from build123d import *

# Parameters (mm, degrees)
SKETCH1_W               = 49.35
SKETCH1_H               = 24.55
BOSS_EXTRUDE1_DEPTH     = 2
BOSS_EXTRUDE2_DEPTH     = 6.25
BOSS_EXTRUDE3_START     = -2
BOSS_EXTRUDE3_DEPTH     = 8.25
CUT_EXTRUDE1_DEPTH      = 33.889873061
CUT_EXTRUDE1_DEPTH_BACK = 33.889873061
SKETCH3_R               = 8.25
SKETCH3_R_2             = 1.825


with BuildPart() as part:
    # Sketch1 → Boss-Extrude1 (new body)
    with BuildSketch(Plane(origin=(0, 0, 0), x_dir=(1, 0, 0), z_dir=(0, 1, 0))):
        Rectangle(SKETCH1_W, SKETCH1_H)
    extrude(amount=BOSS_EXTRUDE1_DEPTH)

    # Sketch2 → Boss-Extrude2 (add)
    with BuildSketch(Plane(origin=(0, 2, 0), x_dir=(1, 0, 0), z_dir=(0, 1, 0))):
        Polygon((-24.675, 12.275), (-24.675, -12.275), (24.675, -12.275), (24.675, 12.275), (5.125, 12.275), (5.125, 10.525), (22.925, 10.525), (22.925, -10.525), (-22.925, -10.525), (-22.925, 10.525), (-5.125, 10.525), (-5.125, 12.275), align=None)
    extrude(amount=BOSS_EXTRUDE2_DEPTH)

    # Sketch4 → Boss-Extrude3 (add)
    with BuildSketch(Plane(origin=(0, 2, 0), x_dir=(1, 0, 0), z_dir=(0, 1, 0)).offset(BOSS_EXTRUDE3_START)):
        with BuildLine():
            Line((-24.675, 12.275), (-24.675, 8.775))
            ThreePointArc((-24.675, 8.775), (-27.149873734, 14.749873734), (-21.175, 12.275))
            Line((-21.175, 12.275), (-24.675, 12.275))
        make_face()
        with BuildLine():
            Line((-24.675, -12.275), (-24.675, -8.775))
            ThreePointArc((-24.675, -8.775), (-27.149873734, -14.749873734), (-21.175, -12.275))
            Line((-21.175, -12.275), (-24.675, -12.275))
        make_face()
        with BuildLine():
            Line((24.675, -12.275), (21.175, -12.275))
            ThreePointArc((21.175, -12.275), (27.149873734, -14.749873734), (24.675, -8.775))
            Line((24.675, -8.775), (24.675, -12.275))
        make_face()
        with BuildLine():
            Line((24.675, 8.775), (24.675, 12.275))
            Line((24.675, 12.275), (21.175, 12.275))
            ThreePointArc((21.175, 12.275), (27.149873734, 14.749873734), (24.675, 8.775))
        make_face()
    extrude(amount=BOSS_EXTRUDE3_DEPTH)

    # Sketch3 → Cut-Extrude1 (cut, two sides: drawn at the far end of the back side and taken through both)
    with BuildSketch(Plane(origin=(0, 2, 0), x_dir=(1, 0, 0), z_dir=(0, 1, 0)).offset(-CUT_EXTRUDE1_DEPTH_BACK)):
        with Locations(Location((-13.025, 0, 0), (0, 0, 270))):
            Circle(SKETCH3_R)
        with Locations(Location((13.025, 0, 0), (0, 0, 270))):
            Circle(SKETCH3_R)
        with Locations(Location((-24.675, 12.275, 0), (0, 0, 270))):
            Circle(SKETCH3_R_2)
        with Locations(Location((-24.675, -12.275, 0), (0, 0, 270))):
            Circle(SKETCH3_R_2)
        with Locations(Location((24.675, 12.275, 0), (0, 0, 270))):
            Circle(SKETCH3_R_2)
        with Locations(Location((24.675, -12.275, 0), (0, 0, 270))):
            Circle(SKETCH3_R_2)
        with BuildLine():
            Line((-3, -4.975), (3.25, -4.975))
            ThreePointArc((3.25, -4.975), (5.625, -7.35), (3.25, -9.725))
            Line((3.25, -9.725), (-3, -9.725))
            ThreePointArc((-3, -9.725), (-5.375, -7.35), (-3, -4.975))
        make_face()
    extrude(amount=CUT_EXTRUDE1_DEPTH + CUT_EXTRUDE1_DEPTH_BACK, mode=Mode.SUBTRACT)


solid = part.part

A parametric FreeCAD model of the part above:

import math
import FreeCAD as App
import Part
import Sketcher

V = App.Vector


def add_polygon(sketch, points):
    """Adds a closed chain of lines whose ends are joined by coincident constraints."""
    first, n = sketch.GeometryCount, len(points)
    for a, b in zip(points, points[1:] + points[:1]):
        sketch.addGeometry(Part.LineSegment(App.Vector(*a, 0), App.Vector(*b, 0)), False)
    for i in range(n):
        sketch.addConstraint(Sketcher.Constraint("Coincident", first + i, 2, first + (i + 1) % n, 1))

doc = App.newDocument("Part")
body = doc.addObject("PartDesign::Body", "Body")

sketch1 = body.newObject("Sketcher::SketchObject", "Sketch")
sketch1.AttachmentSupport = (doc.getObject("XZ_Plane"), [""])
sketch1.MapMode = "FlatFace"
add_polygon(sketch1, [(-24.675, -12.275), (-24.675, 12.275), (24.675, 12.275), (24.675, -12.275)])
sketch1.addConstraint([
    Sketcher.Constraint("Vertical", 0),
    Sketcher.Constraint("Horizontal", 1),
    Sketcher.Constraint("Vertical", 2),
    Sketcher.Constraint("Horizontal", 3),
    Sketcher.Constraint("Symmetric", 0, 2, 2, 2, -1, 1),
    Sketcher.Constraint("DistanceX", 1, 1, 1, 2, 49.35),
    Sketcher.Constraint("DistanceY", 0, 1, 0, 2, 24.55),
])
pad1 = body.newObject("PartDesign::Pad", "Pad")
pad1.Profile = sketch1
pad1.Length = 2
pad1.Reversed = True

sketch2 = body.newObject("Sketcher::SketchObject", "Sketch001")
sketch2.AttachmentSupport = (doc.getObject("XZ_Plane"), [""])
sketch2.MapMode = "FlatFace"
sketch2.AttachmentOffset = App.Placement(V(0, 0, -2), App.Rotation())
add_polygon(sketch2, [(-24.675, -12.275), (-24.675, 12.275), (24.675, 12.275), (24.675, -12.275), (5.125, -12.275), (5.125, -10.525), (22.925, -10.525), (22.925, 10.525), (-22.925, 10.525), (-22.925, -10.525), (-5.125, -10.525), (-5.125, -12.275)])
sketch2.addConstraint([
    Sketcher.Constraint("Vertical", 0),
    Sketcher.Constraint("Horizontal", 1),
    Sketcher.Constraint("Vertical", 2),
    Sketcher.Constraint("Horizontal", 3),
    Sketcher.Constraint("Vertical", 4),
    Sketcher.Constraint("Horizontal", 5),
    Sketcher.Constraint("Vertical", 6),
    Sketcher.Constraint("Horizontal", 7),
    Sketcher.Constraint("Vertical", 8),
    Sketcher.Constraint("Horizontal", 9),
    Sketcher.Constraint("Vertical", 10),
    Sketcher.Constraint("Horizontal", 11),
    Sketcher.Constraint("Symmetric", 0, 2, 2, 2, -1, 1),
    Sketcher.Constraint("Symmetric", 5, 2, 7, 2, -1, 1),
    Sketcher.Constraint("Symmetric", 4, 2, 9, 2, -2),
    Sketcher.Constraint("Horizontal", 3, 2, 10, 2),
    Sketcher.Constraint("DistanceX", 5, 1, 5, 2, 17.8),
    Sketcher.Constraint("DistanceX", 1, 1, 1, 2, 49.35),
    Sketcher.Constraint("DistanceX", 3, 2, 3, 1, 19.55),
    Sketcher.Constraint("DistanceY", 0, 1, 0, 2, 24.55),
    Sketcher.Constraint("DistanceY", 4, 1, 4, 2, 1.75),
])
pad2 = body.newObject("PartDesign::Pad", "Pad001")
pad2.Profile = sketch2
pad2.Length = 6.25
pad2.Reversed = True

sketch3 = body.newObject("Sketcher::SketchObject", "Sketch002")
sketch3.AttachmentSupport = (doc.getObject("XZ_Plane"), [""])
sketch3.MapMode = "FlatFace"
sketch3.addGeometry([
    Part.LineSegment(V(-24.675, -8.775, 0), V(-24.675, -12.275, 0)),
    Part.LineSegment(V(-24.675, -12.275, 0), V(-21.175, -12.275, 0)),
    Part.ArcOfCircle(Part.Circle(V(-24.675, -12.275, 0), V(0, 0, 1), 3.5), math.radians(90), math.radians(360)),
    Part.LineSegment(V(-24.675, 12.275, 0), V(-24.675, 8.775, 0)),
    Part.ArcOfCircle(Part.Circle(V(-24.675, 12.275, 0), V(0, 0, 1), 3.5), math.radians(0), math.radians(270)),
    Part.LineSegment(V(-21.175, 12.275, 0), V(-24.675, 12.275, 0)),
    Part.LineSegment(V(24.675, 12.275, 0), V(21.175, 12.275, 0)),
    Part.ArcOfCircle(Part.Circle(V(24.675, 12.275, 0), V(0, 0, 1), 3.5), math.radians(-90), math.radians(180)),
    Part.LineSegment(V(24.675, 8.775, 0), V(24.675, 12.275, 0)),
    Part.LineSegment(V(24.675, -12.275, 0), V(24.675, -8.775, 0)),
    Part.ArcOfCircle(Part.Circle(V(24.675, -12.275, 0), V(0, 0, 1), 3.5), math.radians(180), math.radians(450)),
    Part.LineSegment(V(21.175, -12.275, 0), V(24.675, -12.275, 0)),
], False)
sketch3.addConstraint([
    Sketcher.Constraint("Coincident", 0, 2, 1, 1),
    Sketcher.Constraint("Coincident", 1, 2, 2, 2),
    Sketcher.Constraint("Coincident", 2, 1, 0, 1),
    Sketcher.Constraint("Coincident", 3, 2, 4, 2),
    Sketcher.Constraint("Coincident", 4, 1, 5, 1),
    Sketcher.Constraint("Coincident", 5, 2, 3, 1),
    Sketcher.Constraint("Coincident", 6, 2, 7, 2),
    Sketcher.Constraint("Coincident", 7, 1, 8, 1),
    Sketcher.Constraint("Coincident", 8, 2, 6, 1),
    Sketcher.Constraint("Coincident", 9, 2, 10, 2),
    Sketcher.Constraint("Coincident", 10, 1, 11, 1),
    Sketcher.Constraint("Coincident", 11, 2, 9, 1),
    Sketcher.Constraint("Vertical", 0),
    Sketcher.Constraint("Horizontal", 1),
    Sketcher.Constraint("Vertical", 3),
    Sketcher.Constraint("Horizontal", 5),
    Sketcher.Constraint("Horizontal", 6),
    Sketcher.Constraint("Vertical", 8),
    Sketcher.Constraint("Vertical", 9),
    Sketcher.Constraint("Horizontal", 11),
    Sketcher.Constraint("Coincident", 0, 2, 2, 3),
    Sketcher.Constraint("Coincident", 5, 2, 4, 3),
    Sketcher.Constraint("Coincident", 8, 2, 7, 3),
    Sketcher.Constraint("Coincident", 11, 2, 10, 3),
    Sketcher.Constraint("Equal", 2, 4),
    Sketcher.Constraint("Equal", 4, 7),
    Sketcher.Constraint("Equal", 7, 10),
    Sketcher.Constraint("Symmetric", 2, 3, 7, 3, -1, 1),
    Sketcher.Constraint("Symmetric", 4, 3, 10, 3, -1, 1),
    Sketcher.Constraint("Symmetric", 4, 3, 7, 3, -2),
    Sketcher.Constraint("Radius", 2, 3.5),
    Sketcher.Constraint("DistanceY", 2, 3, 4, 3, 24.55),
    Sketcher.Constraint("DistanceX", 4, 3, 7, 3, 49.35),
])
pad3 = body.newObject("PartDesign::Pad", "Pad002")
pad3.Profile = sketch3
pad3.Length = 8.25
pad3.Reversed = True

sketch4 = body.newObject("Sketcher::SketchObject", "Sketch003")
sketch4.AttachmentSupport = (doc.getObject("XZ_Plane"), [""])
sketch4.MapMode = "FlatFace"
sketch4.AttachmentOffset = App.Placement(V(0, 0, -2), App.Rotation())
sketch4.addGeometry([
    Part.Circle(V(-13.025, 0, 0), V(0, 0, 1), 8.25),
    Part.Circle(V(13.025, 0, 0), V(0, 0, 1), 8.25),
    Part.Circle(V(-24.675, -12.275, 0), V(0, 0, 1), 1.825),
    Part.Circle(V(-24.675, 12.275, 0), V(0, 0, 1), 1.825),
    Part.Circle(V(24.675, -12.275, 0), V(0, 0, 1), 1.825),
    Part.Circle(V(24.675, 12.275, 0), V(0, 0, 1), 1.825),
    Part.LineSegment(V(3.25, 4.975, 0), V(-3, 4.975, 0)),
    Part.ArcOfCircle(Part.Circle(V(-3, 7.35, 0), V(0, 0, 1), 2.375), math.radians(90), math.radians(270)),
    Part.LineSegment(V(-3, 9.725, 0), V(3.25, 9.725, 0)),
    Part.ArcOfCircle(Part.Circle(V(3.25, 7.35, 0), V(0, 0, 1), 2.375), math.radians(-90), math.radians(90)),
], False)
sketch4.addConstraint([
    Sketcher.Constraint("Tangent", 6, 2, 7, 2),
    Sketcher.Constraint("Tangent", 7, 1, 8, 1),
    Sketcher.Constraint("Tangent", 8, 2, 9, 2),
    Sketcher.Constraint("Tangent", 9, 1, 6, 1),
    Sketcher.Constraint("Horizontal", 6),
    Sketcher.Constraint("Horizontal", 8),
    Sketcher.Constraint("Equal", 0, 1),
    Sketcher.Constraint("Equal", 2, 3),
    Sketcher.Constraint("Equal", 3, 4),
    Sketcher.Constraint("Equal", 4, 5),
    Sketcher.Constraint("Symmetric", 0, 3, 1, 3, -1, 1),
    Sketcher.Constraint("Symmetric", 3, 3, 4, 3, -1, 1),
    Sketcher.Constraint("Symmetric", 2, 3, 5, 3, -1, 1),
    Sketcher.Constraint("Symmetric", 2, 3, 4, 3, -2),
    Sketcher.Constraint("PointOnObject", 0, 3, -1),
    Sketcher.Constraint("Diameter", 0, 16.5),
    Sketcher.Constraint("Diameter", 2, 3.65),
    Sketcher.Constraint("DistanceX", 7, 3, -1, 1, 3.0),
    Sketcher.Constraint("Radius", 7, 2.375),
    Sketcher.Constraint("DistanceX", 6, 2, 6, 1, 6.25),
    Sketcher.Constraint("DistanceX", 2, 3, 1, 3, 37.7),
    Sketcher.Constraint("DistanceY", 6, 2, 3, 3, 7.3),
    Sketcher.Constraint("DistanceY", -1, 1, 7, 3, 7.35),
    Sketcher.Constraint("DistanceX", 0, 3, 1, 3, 26.05),
])
pocket1 = body.newObject("PartDesign::Pocket", "Pocket")
pocket1.Profile = sketch4
pocket1.Type = "ThroughAll"
pocket1.Midplane = True

doc.recompute()
